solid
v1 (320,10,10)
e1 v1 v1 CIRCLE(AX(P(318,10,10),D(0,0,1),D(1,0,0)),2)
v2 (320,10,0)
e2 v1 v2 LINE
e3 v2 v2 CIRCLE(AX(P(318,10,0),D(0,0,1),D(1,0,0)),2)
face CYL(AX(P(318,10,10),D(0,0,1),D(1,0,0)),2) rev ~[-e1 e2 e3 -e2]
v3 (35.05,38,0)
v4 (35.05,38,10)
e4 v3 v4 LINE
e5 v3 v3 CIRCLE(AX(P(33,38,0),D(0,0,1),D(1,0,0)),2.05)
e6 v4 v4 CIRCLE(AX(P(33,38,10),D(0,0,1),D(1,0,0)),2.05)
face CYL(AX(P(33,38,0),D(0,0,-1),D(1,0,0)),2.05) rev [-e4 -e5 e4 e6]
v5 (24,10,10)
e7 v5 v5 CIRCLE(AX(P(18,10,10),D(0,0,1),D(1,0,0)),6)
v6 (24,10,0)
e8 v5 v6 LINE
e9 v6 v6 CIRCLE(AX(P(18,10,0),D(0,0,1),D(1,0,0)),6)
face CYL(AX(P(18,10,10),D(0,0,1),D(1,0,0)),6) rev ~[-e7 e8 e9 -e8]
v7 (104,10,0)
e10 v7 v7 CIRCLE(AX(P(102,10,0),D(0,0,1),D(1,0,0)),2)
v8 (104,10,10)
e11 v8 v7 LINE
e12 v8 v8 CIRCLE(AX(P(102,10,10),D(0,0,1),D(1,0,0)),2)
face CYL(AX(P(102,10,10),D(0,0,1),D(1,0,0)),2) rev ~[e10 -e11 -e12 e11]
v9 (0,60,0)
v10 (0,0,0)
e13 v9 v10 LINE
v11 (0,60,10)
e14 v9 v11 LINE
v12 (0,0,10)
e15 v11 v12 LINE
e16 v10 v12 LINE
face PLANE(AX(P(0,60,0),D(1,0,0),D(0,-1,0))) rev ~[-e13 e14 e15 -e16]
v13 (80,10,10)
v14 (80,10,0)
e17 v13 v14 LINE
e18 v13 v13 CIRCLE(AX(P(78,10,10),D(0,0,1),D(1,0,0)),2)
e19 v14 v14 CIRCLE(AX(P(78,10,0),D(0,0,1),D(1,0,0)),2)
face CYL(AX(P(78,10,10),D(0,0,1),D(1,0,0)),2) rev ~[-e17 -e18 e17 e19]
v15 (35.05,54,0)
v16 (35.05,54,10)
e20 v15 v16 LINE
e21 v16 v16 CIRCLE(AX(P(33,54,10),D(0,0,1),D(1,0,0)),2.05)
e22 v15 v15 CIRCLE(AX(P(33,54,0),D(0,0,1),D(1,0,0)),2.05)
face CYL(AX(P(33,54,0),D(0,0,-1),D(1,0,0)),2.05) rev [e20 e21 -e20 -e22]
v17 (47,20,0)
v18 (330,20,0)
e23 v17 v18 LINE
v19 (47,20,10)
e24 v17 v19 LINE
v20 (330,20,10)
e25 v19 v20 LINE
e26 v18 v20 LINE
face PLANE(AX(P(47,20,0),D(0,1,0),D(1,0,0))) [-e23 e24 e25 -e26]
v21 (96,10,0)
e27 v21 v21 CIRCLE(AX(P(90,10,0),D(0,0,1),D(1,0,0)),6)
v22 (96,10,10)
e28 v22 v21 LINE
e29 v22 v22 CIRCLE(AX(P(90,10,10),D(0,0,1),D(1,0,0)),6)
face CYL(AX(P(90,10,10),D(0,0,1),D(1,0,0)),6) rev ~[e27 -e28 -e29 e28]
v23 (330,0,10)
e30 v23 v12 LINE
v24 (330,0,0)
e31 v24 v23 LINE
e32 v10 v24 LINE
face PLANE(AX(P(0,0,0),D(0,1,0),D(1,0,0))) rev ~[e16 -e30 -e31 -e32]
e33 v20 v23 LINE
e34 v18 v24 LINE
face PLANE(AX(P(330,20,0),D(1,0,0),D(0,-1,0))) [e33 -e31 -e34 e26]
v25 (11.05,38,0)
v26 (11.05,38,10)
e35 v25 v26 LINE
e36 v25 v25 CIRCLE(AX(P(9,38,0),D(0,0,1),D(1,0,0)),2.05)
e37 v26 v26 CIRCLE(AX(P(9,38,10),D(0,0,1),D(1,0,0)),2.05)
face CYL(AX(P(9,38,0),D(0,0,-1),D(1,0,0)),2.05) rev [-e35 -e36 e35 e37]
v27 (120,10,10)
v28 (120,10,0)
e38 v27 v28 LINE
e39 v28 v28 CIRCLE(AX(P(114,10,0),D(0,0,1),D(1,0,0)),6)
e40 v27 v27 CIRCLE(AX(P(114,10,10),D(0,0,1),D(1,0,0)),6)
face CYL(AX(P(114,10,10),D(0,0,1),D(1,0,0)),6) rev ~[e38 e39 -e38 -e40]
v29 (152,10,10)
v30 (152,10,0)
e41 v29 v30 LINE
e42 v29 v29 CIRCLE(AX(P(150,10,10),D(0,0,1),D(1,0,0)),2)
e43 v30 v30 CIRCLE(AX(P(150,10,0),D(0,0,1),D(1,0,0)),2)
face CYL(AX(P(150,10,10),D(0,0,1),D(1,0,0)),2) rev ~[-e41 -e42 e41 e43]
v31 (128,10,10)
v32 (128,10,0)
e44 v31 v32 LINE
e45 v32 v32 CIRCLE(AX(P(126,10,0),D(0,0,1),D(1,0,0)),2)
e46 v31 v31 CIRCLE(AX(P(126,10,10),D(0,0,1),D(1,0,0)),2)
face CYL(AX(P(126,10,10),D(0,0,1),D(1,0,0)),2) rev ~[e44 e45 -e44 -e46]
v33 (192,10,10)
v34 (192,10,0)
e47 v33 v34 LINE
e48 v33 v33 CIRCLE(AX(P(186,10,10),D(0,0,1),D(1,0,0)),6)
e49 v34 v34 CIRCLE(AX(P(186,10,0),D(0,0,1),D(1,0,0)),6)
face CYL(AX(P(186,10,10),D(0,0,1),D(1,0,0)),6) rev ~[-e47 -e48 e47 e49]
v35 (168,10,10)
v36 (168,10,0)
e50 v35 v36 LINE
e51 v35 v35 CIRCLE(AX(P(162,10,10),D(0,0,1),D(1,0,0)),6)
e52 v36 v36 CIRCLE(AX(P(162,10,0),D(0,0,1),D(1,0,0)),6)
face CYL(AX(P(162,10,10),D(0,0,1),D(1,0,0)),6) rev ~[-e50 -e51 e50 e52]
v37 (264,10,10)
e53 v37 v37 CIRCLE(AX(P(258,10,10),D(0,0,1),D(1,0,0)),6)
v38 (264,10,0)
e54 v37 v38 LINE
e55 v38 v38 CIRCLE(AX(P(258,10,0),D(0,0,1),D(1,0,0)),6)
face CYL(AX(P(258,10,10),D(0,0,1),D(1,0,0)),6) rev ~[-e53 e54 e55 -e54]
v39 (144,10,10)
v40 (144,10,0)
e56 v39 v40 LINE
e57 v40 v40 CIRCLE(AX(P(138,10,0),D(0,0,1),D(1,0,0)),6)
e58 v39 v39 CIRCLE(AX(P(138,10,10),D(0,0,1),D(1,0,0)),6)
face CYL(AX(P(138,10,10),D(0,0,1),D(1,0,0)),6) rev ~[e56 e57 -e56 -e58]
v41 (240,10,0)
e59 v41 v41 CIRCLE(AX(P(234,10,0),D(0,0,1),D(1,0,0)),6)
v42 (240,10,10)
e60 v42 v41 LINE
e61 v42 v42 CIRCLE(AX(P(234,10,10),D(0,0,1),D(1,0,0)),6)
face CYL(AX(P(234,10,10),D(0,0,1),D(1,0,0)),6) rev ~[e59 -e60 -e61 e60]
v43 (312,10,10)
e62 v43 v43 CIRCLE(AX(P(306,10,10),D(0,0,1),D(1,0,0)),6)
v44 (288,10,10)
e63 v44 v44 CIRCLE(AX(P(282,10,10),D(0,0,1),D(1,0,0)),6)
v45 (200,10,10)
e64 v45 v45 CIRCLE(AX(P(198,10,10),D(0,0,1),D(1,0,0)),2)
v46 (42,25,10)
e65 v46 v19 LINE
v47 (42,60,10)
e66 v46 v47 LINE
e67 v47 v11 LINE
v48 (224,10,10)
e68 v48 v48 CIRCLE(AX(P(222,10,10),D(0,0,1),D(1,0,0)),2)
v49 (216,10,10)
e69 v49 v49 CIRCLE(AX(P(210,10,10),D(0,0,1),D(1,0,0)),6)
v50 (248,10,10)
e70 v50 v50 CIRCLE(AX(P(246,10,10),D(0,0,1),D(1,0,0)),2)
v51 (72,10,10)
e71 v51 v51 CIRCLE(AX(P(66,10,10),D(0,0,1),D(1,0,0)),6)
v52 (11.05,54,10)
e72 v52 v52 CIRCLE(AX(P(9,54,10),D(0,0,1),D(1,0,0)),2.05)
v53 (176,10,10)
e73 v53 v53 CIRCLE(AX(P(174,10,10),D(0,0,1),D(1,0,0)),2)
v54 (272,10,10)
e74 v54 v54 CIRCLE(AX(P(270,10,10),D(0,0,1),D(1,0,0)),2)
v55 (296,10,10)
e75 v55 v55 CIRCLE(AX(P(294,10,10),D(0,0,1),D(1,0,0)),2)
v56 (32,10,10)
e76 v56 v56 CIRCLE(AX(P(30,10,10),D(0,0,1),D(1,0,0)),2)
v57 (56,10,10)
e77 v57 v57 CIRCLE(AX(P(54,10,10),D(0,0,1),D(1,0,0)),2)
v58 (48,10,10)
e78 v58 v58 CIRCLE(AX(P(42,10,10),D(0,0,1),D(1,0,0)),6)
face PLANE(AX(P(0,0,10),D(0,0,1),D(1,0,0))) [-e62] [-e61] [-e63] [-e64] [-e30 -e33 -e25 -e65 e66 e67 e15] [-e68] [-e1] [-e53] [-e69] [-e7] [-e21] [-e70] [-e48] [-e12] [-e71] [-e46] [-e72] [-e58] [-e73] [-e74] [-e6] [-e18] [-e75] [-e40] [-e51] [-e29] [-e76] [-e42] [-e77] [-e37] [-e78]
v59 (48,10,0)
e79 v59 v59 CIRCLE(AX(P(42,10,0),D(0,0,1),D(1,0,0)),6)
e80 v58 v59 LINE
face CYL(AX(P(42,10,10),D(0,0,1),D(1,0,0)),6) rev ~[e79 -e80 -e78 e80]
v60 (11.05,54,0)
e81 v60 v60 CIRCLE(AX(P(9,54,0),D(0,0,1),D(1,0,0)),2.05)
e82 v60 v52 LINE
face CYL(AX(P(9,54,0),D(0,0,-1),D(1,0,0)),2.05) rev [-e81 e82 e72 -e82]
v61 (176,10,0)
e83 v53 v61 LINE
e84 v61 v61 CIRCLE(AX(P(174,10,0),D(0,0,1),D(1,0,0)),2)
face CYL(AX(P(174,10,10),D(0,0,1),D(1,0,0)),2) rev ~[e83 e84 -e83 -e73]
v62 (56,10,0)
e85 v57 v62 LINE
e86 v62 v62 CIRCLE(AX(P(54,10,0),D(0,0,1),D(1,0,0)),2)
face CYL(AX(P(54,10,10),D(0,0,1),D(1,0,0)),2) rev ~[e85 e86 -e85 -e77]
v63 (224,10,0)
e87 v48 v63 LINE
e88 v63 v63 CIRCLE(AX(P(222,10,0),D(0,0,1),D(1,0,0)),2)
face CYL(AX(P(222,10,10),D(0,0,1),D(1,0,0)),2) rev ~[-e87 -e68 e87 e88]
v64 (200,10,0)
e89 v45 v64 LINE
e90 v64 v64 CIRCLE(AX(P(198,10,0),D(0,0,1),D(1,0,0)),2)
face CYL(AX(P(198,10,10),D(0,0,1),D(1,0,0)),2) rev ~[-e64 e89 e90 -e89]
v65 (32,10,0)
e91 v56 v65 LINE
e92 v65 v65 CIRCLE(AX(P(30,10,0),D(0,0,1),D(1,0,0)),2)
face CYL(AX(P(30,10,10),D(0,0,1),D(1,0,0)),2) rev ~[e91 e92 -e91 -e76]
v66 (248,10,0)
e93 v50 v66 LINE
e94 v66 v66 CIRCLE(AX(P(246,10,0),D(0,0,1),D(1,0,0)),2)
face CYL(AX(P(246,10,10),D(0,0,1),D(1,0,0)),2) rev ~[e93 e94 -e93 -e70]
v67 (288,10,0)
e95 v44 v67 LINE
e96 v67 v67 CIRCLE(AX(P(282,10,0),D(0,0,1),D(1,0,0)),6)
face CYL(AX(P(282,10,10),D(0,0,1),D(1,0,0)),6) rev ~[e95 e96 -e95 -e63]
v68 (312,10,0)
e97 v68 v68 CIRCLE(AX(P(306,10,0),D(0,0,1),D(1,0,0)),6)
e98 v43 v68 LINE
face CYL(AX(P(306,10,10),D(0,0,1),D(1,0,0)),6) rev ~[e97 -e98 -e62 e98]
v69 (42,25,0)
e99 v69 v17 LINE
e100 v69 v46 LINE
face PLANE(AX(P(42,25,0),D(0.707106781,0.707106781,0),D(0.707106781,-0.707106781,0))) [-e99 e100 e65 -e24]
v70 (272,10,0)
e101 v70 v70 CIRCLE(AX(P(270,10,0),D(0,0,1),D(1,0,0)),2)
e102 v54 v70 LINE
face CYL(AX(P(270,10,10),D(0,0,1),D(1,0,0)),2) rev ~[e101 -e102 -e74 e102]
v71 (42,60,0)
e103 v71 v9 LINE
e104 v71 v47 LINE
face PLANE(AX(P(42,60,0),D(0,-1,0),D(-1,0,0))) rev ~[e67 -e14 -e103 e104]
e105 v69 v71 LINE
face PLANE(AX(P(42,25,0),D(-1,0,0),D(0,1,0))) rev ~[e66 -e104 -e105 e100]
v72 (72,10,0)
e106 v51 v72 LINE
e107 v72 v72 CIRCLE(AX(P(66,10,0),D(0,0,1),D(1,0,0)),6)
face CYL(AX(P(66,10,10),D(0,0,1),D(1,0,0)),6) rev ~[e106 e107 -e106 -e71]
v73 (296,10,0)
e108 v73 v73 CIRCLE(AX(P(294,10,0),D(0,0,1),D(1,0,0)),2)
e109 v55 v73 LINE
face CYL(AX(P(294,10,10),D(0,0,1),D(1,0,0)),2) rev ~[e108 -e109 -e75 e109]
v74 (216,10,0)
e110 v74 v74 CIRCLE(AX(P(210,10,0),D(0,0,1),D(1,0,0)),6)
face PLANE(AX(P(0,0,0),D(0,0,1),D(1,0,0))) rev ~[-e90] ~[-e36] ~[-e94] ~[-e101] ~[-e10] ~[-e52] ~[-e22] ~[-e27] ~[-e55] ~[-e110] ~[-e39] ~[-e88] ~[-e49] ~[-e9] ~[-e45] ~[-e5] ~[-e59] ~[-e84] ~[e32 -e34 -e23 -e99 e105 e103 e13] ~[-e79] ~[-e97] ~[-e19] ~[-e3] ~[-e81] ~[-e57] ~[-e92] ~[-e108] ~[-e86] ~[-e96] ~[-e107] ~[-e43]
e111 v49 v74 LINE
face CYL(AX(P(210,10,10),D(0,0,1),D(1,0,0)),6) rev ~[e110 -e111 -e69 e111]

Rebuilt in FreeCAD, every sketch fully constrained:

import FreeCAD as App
import Part
import Sketcher

V = App.Vector
Q = App.Units.Quantity


def add_polygon(sketch, points):
    """Adds a closed chain of lines whose ends are joined by coincident constraints."""
    first, n = sketch.GeometryCount, len(points)
    for a, b in zip(points, points[1:] + points[:1]):
        sketch.addGeometry(Part.LineSegment(App.Vector(*a, 0), App.Vector(*b, 0)), False)
    for i in range(n):
        sketch.addConstraint(Sketcher.Constraint("Coincident", first + i, 2, first + (i + 1) % n, 1))

doc = App.newDocument("Part")
body = doc.addObject("PartDesign::Body", "Body")

sketch1 = body.newObject("Sketcher::SketchObject", "Sketch")
sketch1.AttachmentSupport = (doc.getObject("XY_Plane"), [""])
sketch1.MapMode = "FlatFace"
add_polygon(sketch1, [(0, 60), (0, 0), (330, 0), (330, 20), (47, 20), (42, 25), (42, 60)])
sketch1.addGeometry(Part.Circle(V(9, 38, 0), V(0, 0, 1), 2), False)
sketch1.addGeometry(Part.Circle(V(33, 38, 0), V(0, 0, 1), 2), False)
sketch1.addGeometry(Part.Circle(V(9, 54, 0), V(0, 0, 1), 2), False)
sketch1.addGeometry(Part.Circle(V(33, 54, 0), V(0, 0, 1), 2), False)
sketch1.addConstraint(Sketcher.Constraint("Vertical", 0))
sketch1.addConstraint(Sketcher.Constraint("Horizontal", 1))
sketch1.addConstraint(Sketcher.Constraint("Vertical", 2))
sketch1.addConstraint(Sketcher.Constraint("Horizontal", 3))
sketch1.addConstraint(Sketcher.Constraint("Vertical", 5))
sketch1.addConstraint(Sketcher.Constraint("Horizontal", 6))
sketch1.addConstraint(Sketcher.Constraint("Coincident", 0, 2, -1, 1))
sketch1.addConstraint(Sketcher.Constraint("Equal", 7, 8))
sketch1.addConstraint(Sketcher.Constraint("Equal", 8, 9))
sketch1.addConstraint(Sketcher.Constraint("Equal", 9, 10))
sketch1.addConstraint(Sketcher.Constraint("Horizontal", 7, 3, 8, 3))
sketch1.addConstraint(Sketcher.Constraint("Horizontal", 9, 3, 10, 3))
sketch1.addConstraint(Sketcher.Constraint("Vertical", 7, 3, 9, 3))
sketch1.addConstraint(Sketcher.Constraint("Vertical", 8, 3, 10, 3))
sketch1.addConstraint(Sketcher.Constraint("Diameter", 7, Q("4.1 mm")))
sketch1.addConstraint(Sketcher.Constraint("DistanceX", 1, 1, 1, 2, Q("330 mm")))
sketch1.addConstraint(Sketcher.Constraint("DistanceX", 6, 2, 6, 1, Q("42 mm")))
sketch1.addConstraint(Sketcher.Constraint("DistanceY", 0, 2, 0, 1, Q("60 mm")))
sketch1.addConstraint(Sketcher.Constraint("DistanceX", -1, 1, 7, 3, Q("9 mm")))
sketch1.addConstraint(Sketcher.Constraint("DistanceX", 7, 3, 8, 3, Q("24 mm")))
sketch1.addConstraint(Sketcher.Constraint("DistanceY", 7, 3, 9, 3, Q("16 mm")))
sketch1.addConstraint(Sketcher.Constraint("DistanceX", 4, 2, 3, 2, Q("5 mm")))
sketch1.addConstraint(Sketcher.Constraint("DistanceY", 3, 2, 4, 2, Q("5 mm")))
sketch1.addConstraint(Sketcher.Constraint("DistanceY", 10, 3, 5, 2, Q("6 mm")))
sketch1.addConstraint(Sketcher.Constraint("DistanceY", 2, 1, 2, 2, Q("20 mm")))
pad1 = body.newObject("PartDesign::Pad", "Pad")
pad1.Profile = sketch1
pad1.Length = 10

sketch2 = body.newObject("Sketcher::SketchObject", "Sketch001")
sketch2.AttachmentSupport = (doc.getObject("XY_Plane"), [""])
sketch2.MapMode = "FlatFace"
sketch2.AttachmentOffset = App.Placement(V(0, 0, 10), App.Rotation())
sketch2.addGeometry(Part.Circle(V(318, 10, 0), V(0, 0, 1), 2), False)
sketch2.addGeometry(Part.Circle(V(306, 10, 0), V(0, 0, 1), 6), False)
sketch2.addGeometry(Part.Circle(V(294, 10, 0), V(0, 0, 1), 2), False)
sketch2.addGeometry(Part.Circle(V(282, 10, 0), V(0, 0, 1), 6), False)
sketch2.addGeometry(Part.Circle(V(270, 10, 0), V(0, 0, 1), 2), False)
sketch2.addGeometry(Part.Circle(V(258, 10, 0), V(0, 0, 1), 6), False)
sketch2.addGeometry(Part.Circle(V(246, 10, 0), V(0, 0, 1), 2), False)
sketch2.addGeometry(Part.Circle(V(234, 10, 0), V(0, 0, 1), 6), False)
sketch2.addGeometry(Part.Circle(V(222, 10, 0), V(0, 0, 1), 2), False)
sketch2.addGeometry(Part.Circle(V(210, 10, 0), V(0, 0, 1), 6), False)
sketch2.addGeometry(Part.Circle(V(198, 10, 0), V(0, 0, 1), 2), False)
sketch2.addGeometry(Part.Circle(V(186, 10, 0), V(0, 0, 1), 6), False)
sketch2.addGeometry(Part.Circle(V(174, 10, 0), V(0, 0, 1), 2), False)
sketch2.addGeometry(Part.Circle(V(162, 10, 0), V(0, 0, 1), 6), False)
sketch2.addGeometry(Part.Circle(V(150, 10, 0), V(0, 0, 1), 2), False)
sketch2.addGeometry(Part.Circle(V(138, 10, 0), V(0, 0, 1), 6), False)
sketch2.addGeometry(Part.Circle(V(126, 10, 0), V(0, 0, 1), 2), False)
sketch2.addGeometry(Part.Circle(V(114, 10, 0), V(0, 0, 1), 6), False)
sketch2.addGeometry(Part.Circle(V(102, 10, 0), V(0, 0, 1), 2), False)
sketch2.addGeometry(Part.Circle(V(90, 10, 0), V(0, 0, 1), 6), False)
sketch2.addGeometry(Part.Circle(V(78, 10, 0), V(0, 0, 1), 2), False)
sketch2.addGeometry(Part.Circle(V(66, 10, 0), V(0, 0, 1), 6), False)
sketch2.addGeometry(Part.Circle(V(54, 10, 0), V(0, 0, 1), 2), False)
sketch2.addGeometry(Part.Circle(V(42, 10, 0), V(0, 0, 1), 6), False)
sketch2.addGeometry(Part.Circle(V(30, 10, 0), V(0, 0, 1), 2), False)
sketch2.addGeometry(Part.Circle(V(18, 10, 0), V(0, 0, 1), 6), False)
sketch2.addConstraint(Sketcher.Constraint("Equal", 0, 2))
sketch2.addConstraint(Sketcher.Constraint("Equal", 1, 3))
sketch2.addConstraint(Sketcher.Constraint("Equal", 2, 4))
sketch2.addConstraint(Sketcher.Constraint("Equal", 3, 5))
sketch2.addConstraint(Sketcher.Constraint("Equal", 4, 6))
sketch2.addConstraint(Sketcher.Constraint("Equal", 5, 7))
sketch2.addConstraint(Sketcher.Constraint("Equal", 6, 8))
sketch2.addConstraint(Sketcher.Constraint("Equal", 7, 9))
sketch2.addConstraint(Sketcher.Constraint("Equal", 8, 10))
sketch2.addConstraint(Sketcher.Constraint("Equal", 9, 11))
sketch2.addConstraint(Sketcher.Constraint("Equal", 10, 12))
sketch2.addConstraint(Sketcher.Constraint("Equal", 11, 13))
sketch2.addConstraint(Sketcher.Constraint("Equal", 12, 14))
sketch2.addConstraint(Sketcher.Constraint("Equal", 13, 15))
sketch2.addConstraint(Sketcher.Constraint("Equal", 14, 16))
sketch2.addConstraint(Sketcher.Constraint("Equal", 15, 17))
sketch2.addConstraint(Sketcher.Constraint("Equal", 16, 18))
sketch2.addConstraint(Sketcher.Constraint("Equal", 17, 19))
sketch2.addConstraint(Sketcher.Constraint("Equal", 18, 20))
sketch2.addConstraint(Sketcher.Constraint("Equal", 19, 21))
sketch2.addConstraint(Sketcher.Constraint("Equal", 20, 22))
sketch2.addConstraint(Sketcher.Constraint("Equal", 21, 23))
sketch2.addConstraint(Sketcher.Constraint("Equal", 22, 24))
sketch2.addConstraint(Sketcher.Constraint("Equal", 23, 25))
sketch2.addConstraint(Sketcher.Constraint("Horizontal", 0, 3, 1, 3))
sketch2.addConstraint(Sketcher.Constraint("Horizontal", 1, 3, 2, 3))
sketch2.addConstraint(Sketcher.Constraint("Horizontal", 2, 3, 3, 3))
sketch2.addConstraint(Sketcher.Constraint("Horizontal", 3, 3, 4, 3))
sketch2.addConstraint(Sketcher.Constraint("Horizontal", 4, 3, 5, 3))
sketch2.addConstraint(Sketcher.Constraint("Horizontal", 5, 3, 6, 3))
sketch2.addConstraint(Sketcher.Constraint("Horizontal", 6, 3, 7, 3))
sketch2.addConstraint(Sketcher.Constraint("Horizontal", 7, 3, 8, 3))
sketch2.addConstraint(Sketcher.Constraint("Horizontal", 8, 3, 9, 3))
sketch2.addConstraint(Sketcher.Constraint("Horizontal", 9, 3, 10, 3))
sketch2.addConstraint(Sketcher.Constraint("Horizontal", 10, 3, 11, 3))
sketch2.addConstraint(Sketcher.Constraint("Horizontal", 11, 3, 12, 3))
sketch2.addConstraint(Sketcher.Constraint("Horizontal", 12, 3, 13, 3))
sketch2.addConstraint(Sketcher.Constraint("Horizontal", 13, 3, 14, 3))
sketch2.addConstraint(Sketcher.Constraint("Horizontal", 14, 3, 15, 3))
sketch2.addConstraint(Sketcher.Constraint("Horizontal", 15, 3, 16, 3))
sketch2.addConstraint(Sketcher.Constraint("Horizontal", 16, 3, 17, 3))
sketch2.addConstraint(Sketcher.Constraint("Horizontal", 17, 3, 18, 3))
sketch2.addConstraint(Sketcher.Constraint("Horizontal", 18, 3, 19, 3))
sketch2.addConstraint(Sketcher.Constraint("Horizontal", 19, 3, 20, 3))
sketch2.addConstraint(Sketcher.Constraint("Horizontal", 20, 3, 21, 3))
sketch2.addConstraint(Sketcher.Constraint("Horizontal", 21, 3, 22, 3))
sketch2.addConstraint(Sketcher.Constraint("Horizontal", 22, 3, 23, 3))
sketch2.addConstraint(Sketcher.Constraint("Horizontal", 23, 3, 24, 3))
sketch2.addConstraint(Sketcher.Constraint("Horizontal", 24, 3, 25, 3))
sketch2.addConstraint(Sketcher.Constraint("Diameter", 0, Q("4 mm")))
sketch2.addConstraint(Sketcher.Constraint("Diameter", 1, Q("12 mm")))
sketch2.addConstraint(Sketcher.Constraint("DistanceY", -1, 1, 0, 3, Q("10 mm")))
sketch2.addConstraint(Sketcher.Constraint("DistanceX", 1, 3, 0, 3, Q("12 mm")))
sketch2.addConstraint(Sketcher.Constraint("DistanceX", 2, 3, 1, 3, Q("12 mm")))
sketch2.addConstraint(Sketcher.Constraint("DistanceX", 3, 3, 2, 3, Q("12 mm")))
sketch2.addConstraint(Sketcher.Constraint("DistanceX", 4, 3, 3, 3, Q("12 mm")))
sketch2.addConstraint(Sketcher.Constraint("DistanceX", 5, 3, 4, 3, Q("12 mm")))
sketch2.addConstraint(Sketcher.Constraint("DistanceX", 6, 3, 5, 3, Q("12 mm")))
sketch2.addConstraint(Sketcher.Constraint("DistanceX", 7, 3, 6, 3, Q("12 mm")))
sketch2.addConstraint(Sketcher.Constraint("DistanceX", 8, 3, 7, 3, Q("12 mm")))
sketch2.addConstraint(Sketcher.Constraint("DistanceX", 9, 3, 8, 3, Q("12 mm")))
sketch2.addConstraint(Sketcher.Constraint("DistanceX", 10, 3, 9, 3, Q("12 mm")))
sketch2.addConstraint(Sketcher.Constraint("DistanceX", 11, 3, 10, 3, Q("12 mm")))
sketch2.addConstraint(Sketcher.Constraint("DistanceX", 12, 3, 11, 3, Q("12 mm")))
sketch2.addConstraint(Sketcher.Constraint("DistanceX", 13, 3, 12, 3, Q("12 mm")))
sketch2.addConstraint(Sketcher.Constraint("DistanceX", 14, 3, 13, 3, Q("12 mm")))
sketch2.addConstraint(Sketcher.Constraint("DistanceX", 15, 3, 14, 3, Q("12 mm")))
sketch2.addConstraint(Sketcher.Constraint("DistanceX", 16, 3, 15, 3, Q("12 mm")))
sketch2.addConstraint(Sketcher.Constraint("DistanceX", 17, 3, 16, 3, Q("12 mm")))
sketch2.addConstraint(Sketcher.Constraint("DistanceX", 18, 3, 17, 3, Q("12 mm")))
sketch2.addConstraint(Sketcher.Constraint("DistanceX", 19, 3, 18, 3, Q("12 mm")))
sketch2.addConstraint(Sketcher.Constraint("DistanceX", 20, 3, 19, 3, Q("12 mm")))
sketch2.addConstraint(Sketcher.Constraint("DistanceX", 21, 3, 20, 3, Q("12 mm")))
sketch2.addConstraint(Sketcher.Constraint("DistanceX", 22, 3, 21, 3, Q("12 mm")))
sketch2.addConstraint(Sketcher.Constraint("DistanceX", 23, 3, 22, 3, Q("12 mm")))
sketch2.addConstraint(Sketcher.Constraint("DistanceX", 24, 3, 23, 3, Q("12 mm")))
sketch2.addConstraint(Sketcher.Constraint("DistanceX", 25, 3, 24, 3, Q("12 mm")))
sketch2.addConstraint(Sketcher.Constraint("DistanceX", -1, 1, 0, 3, Q("318 mm")))
pocket1 = body.newObject("PartDesign::Pocket", "Pocket")
pocket1.Profile = sketch2
pocket1.Type = "ThroughAll"

doc.recompute()
